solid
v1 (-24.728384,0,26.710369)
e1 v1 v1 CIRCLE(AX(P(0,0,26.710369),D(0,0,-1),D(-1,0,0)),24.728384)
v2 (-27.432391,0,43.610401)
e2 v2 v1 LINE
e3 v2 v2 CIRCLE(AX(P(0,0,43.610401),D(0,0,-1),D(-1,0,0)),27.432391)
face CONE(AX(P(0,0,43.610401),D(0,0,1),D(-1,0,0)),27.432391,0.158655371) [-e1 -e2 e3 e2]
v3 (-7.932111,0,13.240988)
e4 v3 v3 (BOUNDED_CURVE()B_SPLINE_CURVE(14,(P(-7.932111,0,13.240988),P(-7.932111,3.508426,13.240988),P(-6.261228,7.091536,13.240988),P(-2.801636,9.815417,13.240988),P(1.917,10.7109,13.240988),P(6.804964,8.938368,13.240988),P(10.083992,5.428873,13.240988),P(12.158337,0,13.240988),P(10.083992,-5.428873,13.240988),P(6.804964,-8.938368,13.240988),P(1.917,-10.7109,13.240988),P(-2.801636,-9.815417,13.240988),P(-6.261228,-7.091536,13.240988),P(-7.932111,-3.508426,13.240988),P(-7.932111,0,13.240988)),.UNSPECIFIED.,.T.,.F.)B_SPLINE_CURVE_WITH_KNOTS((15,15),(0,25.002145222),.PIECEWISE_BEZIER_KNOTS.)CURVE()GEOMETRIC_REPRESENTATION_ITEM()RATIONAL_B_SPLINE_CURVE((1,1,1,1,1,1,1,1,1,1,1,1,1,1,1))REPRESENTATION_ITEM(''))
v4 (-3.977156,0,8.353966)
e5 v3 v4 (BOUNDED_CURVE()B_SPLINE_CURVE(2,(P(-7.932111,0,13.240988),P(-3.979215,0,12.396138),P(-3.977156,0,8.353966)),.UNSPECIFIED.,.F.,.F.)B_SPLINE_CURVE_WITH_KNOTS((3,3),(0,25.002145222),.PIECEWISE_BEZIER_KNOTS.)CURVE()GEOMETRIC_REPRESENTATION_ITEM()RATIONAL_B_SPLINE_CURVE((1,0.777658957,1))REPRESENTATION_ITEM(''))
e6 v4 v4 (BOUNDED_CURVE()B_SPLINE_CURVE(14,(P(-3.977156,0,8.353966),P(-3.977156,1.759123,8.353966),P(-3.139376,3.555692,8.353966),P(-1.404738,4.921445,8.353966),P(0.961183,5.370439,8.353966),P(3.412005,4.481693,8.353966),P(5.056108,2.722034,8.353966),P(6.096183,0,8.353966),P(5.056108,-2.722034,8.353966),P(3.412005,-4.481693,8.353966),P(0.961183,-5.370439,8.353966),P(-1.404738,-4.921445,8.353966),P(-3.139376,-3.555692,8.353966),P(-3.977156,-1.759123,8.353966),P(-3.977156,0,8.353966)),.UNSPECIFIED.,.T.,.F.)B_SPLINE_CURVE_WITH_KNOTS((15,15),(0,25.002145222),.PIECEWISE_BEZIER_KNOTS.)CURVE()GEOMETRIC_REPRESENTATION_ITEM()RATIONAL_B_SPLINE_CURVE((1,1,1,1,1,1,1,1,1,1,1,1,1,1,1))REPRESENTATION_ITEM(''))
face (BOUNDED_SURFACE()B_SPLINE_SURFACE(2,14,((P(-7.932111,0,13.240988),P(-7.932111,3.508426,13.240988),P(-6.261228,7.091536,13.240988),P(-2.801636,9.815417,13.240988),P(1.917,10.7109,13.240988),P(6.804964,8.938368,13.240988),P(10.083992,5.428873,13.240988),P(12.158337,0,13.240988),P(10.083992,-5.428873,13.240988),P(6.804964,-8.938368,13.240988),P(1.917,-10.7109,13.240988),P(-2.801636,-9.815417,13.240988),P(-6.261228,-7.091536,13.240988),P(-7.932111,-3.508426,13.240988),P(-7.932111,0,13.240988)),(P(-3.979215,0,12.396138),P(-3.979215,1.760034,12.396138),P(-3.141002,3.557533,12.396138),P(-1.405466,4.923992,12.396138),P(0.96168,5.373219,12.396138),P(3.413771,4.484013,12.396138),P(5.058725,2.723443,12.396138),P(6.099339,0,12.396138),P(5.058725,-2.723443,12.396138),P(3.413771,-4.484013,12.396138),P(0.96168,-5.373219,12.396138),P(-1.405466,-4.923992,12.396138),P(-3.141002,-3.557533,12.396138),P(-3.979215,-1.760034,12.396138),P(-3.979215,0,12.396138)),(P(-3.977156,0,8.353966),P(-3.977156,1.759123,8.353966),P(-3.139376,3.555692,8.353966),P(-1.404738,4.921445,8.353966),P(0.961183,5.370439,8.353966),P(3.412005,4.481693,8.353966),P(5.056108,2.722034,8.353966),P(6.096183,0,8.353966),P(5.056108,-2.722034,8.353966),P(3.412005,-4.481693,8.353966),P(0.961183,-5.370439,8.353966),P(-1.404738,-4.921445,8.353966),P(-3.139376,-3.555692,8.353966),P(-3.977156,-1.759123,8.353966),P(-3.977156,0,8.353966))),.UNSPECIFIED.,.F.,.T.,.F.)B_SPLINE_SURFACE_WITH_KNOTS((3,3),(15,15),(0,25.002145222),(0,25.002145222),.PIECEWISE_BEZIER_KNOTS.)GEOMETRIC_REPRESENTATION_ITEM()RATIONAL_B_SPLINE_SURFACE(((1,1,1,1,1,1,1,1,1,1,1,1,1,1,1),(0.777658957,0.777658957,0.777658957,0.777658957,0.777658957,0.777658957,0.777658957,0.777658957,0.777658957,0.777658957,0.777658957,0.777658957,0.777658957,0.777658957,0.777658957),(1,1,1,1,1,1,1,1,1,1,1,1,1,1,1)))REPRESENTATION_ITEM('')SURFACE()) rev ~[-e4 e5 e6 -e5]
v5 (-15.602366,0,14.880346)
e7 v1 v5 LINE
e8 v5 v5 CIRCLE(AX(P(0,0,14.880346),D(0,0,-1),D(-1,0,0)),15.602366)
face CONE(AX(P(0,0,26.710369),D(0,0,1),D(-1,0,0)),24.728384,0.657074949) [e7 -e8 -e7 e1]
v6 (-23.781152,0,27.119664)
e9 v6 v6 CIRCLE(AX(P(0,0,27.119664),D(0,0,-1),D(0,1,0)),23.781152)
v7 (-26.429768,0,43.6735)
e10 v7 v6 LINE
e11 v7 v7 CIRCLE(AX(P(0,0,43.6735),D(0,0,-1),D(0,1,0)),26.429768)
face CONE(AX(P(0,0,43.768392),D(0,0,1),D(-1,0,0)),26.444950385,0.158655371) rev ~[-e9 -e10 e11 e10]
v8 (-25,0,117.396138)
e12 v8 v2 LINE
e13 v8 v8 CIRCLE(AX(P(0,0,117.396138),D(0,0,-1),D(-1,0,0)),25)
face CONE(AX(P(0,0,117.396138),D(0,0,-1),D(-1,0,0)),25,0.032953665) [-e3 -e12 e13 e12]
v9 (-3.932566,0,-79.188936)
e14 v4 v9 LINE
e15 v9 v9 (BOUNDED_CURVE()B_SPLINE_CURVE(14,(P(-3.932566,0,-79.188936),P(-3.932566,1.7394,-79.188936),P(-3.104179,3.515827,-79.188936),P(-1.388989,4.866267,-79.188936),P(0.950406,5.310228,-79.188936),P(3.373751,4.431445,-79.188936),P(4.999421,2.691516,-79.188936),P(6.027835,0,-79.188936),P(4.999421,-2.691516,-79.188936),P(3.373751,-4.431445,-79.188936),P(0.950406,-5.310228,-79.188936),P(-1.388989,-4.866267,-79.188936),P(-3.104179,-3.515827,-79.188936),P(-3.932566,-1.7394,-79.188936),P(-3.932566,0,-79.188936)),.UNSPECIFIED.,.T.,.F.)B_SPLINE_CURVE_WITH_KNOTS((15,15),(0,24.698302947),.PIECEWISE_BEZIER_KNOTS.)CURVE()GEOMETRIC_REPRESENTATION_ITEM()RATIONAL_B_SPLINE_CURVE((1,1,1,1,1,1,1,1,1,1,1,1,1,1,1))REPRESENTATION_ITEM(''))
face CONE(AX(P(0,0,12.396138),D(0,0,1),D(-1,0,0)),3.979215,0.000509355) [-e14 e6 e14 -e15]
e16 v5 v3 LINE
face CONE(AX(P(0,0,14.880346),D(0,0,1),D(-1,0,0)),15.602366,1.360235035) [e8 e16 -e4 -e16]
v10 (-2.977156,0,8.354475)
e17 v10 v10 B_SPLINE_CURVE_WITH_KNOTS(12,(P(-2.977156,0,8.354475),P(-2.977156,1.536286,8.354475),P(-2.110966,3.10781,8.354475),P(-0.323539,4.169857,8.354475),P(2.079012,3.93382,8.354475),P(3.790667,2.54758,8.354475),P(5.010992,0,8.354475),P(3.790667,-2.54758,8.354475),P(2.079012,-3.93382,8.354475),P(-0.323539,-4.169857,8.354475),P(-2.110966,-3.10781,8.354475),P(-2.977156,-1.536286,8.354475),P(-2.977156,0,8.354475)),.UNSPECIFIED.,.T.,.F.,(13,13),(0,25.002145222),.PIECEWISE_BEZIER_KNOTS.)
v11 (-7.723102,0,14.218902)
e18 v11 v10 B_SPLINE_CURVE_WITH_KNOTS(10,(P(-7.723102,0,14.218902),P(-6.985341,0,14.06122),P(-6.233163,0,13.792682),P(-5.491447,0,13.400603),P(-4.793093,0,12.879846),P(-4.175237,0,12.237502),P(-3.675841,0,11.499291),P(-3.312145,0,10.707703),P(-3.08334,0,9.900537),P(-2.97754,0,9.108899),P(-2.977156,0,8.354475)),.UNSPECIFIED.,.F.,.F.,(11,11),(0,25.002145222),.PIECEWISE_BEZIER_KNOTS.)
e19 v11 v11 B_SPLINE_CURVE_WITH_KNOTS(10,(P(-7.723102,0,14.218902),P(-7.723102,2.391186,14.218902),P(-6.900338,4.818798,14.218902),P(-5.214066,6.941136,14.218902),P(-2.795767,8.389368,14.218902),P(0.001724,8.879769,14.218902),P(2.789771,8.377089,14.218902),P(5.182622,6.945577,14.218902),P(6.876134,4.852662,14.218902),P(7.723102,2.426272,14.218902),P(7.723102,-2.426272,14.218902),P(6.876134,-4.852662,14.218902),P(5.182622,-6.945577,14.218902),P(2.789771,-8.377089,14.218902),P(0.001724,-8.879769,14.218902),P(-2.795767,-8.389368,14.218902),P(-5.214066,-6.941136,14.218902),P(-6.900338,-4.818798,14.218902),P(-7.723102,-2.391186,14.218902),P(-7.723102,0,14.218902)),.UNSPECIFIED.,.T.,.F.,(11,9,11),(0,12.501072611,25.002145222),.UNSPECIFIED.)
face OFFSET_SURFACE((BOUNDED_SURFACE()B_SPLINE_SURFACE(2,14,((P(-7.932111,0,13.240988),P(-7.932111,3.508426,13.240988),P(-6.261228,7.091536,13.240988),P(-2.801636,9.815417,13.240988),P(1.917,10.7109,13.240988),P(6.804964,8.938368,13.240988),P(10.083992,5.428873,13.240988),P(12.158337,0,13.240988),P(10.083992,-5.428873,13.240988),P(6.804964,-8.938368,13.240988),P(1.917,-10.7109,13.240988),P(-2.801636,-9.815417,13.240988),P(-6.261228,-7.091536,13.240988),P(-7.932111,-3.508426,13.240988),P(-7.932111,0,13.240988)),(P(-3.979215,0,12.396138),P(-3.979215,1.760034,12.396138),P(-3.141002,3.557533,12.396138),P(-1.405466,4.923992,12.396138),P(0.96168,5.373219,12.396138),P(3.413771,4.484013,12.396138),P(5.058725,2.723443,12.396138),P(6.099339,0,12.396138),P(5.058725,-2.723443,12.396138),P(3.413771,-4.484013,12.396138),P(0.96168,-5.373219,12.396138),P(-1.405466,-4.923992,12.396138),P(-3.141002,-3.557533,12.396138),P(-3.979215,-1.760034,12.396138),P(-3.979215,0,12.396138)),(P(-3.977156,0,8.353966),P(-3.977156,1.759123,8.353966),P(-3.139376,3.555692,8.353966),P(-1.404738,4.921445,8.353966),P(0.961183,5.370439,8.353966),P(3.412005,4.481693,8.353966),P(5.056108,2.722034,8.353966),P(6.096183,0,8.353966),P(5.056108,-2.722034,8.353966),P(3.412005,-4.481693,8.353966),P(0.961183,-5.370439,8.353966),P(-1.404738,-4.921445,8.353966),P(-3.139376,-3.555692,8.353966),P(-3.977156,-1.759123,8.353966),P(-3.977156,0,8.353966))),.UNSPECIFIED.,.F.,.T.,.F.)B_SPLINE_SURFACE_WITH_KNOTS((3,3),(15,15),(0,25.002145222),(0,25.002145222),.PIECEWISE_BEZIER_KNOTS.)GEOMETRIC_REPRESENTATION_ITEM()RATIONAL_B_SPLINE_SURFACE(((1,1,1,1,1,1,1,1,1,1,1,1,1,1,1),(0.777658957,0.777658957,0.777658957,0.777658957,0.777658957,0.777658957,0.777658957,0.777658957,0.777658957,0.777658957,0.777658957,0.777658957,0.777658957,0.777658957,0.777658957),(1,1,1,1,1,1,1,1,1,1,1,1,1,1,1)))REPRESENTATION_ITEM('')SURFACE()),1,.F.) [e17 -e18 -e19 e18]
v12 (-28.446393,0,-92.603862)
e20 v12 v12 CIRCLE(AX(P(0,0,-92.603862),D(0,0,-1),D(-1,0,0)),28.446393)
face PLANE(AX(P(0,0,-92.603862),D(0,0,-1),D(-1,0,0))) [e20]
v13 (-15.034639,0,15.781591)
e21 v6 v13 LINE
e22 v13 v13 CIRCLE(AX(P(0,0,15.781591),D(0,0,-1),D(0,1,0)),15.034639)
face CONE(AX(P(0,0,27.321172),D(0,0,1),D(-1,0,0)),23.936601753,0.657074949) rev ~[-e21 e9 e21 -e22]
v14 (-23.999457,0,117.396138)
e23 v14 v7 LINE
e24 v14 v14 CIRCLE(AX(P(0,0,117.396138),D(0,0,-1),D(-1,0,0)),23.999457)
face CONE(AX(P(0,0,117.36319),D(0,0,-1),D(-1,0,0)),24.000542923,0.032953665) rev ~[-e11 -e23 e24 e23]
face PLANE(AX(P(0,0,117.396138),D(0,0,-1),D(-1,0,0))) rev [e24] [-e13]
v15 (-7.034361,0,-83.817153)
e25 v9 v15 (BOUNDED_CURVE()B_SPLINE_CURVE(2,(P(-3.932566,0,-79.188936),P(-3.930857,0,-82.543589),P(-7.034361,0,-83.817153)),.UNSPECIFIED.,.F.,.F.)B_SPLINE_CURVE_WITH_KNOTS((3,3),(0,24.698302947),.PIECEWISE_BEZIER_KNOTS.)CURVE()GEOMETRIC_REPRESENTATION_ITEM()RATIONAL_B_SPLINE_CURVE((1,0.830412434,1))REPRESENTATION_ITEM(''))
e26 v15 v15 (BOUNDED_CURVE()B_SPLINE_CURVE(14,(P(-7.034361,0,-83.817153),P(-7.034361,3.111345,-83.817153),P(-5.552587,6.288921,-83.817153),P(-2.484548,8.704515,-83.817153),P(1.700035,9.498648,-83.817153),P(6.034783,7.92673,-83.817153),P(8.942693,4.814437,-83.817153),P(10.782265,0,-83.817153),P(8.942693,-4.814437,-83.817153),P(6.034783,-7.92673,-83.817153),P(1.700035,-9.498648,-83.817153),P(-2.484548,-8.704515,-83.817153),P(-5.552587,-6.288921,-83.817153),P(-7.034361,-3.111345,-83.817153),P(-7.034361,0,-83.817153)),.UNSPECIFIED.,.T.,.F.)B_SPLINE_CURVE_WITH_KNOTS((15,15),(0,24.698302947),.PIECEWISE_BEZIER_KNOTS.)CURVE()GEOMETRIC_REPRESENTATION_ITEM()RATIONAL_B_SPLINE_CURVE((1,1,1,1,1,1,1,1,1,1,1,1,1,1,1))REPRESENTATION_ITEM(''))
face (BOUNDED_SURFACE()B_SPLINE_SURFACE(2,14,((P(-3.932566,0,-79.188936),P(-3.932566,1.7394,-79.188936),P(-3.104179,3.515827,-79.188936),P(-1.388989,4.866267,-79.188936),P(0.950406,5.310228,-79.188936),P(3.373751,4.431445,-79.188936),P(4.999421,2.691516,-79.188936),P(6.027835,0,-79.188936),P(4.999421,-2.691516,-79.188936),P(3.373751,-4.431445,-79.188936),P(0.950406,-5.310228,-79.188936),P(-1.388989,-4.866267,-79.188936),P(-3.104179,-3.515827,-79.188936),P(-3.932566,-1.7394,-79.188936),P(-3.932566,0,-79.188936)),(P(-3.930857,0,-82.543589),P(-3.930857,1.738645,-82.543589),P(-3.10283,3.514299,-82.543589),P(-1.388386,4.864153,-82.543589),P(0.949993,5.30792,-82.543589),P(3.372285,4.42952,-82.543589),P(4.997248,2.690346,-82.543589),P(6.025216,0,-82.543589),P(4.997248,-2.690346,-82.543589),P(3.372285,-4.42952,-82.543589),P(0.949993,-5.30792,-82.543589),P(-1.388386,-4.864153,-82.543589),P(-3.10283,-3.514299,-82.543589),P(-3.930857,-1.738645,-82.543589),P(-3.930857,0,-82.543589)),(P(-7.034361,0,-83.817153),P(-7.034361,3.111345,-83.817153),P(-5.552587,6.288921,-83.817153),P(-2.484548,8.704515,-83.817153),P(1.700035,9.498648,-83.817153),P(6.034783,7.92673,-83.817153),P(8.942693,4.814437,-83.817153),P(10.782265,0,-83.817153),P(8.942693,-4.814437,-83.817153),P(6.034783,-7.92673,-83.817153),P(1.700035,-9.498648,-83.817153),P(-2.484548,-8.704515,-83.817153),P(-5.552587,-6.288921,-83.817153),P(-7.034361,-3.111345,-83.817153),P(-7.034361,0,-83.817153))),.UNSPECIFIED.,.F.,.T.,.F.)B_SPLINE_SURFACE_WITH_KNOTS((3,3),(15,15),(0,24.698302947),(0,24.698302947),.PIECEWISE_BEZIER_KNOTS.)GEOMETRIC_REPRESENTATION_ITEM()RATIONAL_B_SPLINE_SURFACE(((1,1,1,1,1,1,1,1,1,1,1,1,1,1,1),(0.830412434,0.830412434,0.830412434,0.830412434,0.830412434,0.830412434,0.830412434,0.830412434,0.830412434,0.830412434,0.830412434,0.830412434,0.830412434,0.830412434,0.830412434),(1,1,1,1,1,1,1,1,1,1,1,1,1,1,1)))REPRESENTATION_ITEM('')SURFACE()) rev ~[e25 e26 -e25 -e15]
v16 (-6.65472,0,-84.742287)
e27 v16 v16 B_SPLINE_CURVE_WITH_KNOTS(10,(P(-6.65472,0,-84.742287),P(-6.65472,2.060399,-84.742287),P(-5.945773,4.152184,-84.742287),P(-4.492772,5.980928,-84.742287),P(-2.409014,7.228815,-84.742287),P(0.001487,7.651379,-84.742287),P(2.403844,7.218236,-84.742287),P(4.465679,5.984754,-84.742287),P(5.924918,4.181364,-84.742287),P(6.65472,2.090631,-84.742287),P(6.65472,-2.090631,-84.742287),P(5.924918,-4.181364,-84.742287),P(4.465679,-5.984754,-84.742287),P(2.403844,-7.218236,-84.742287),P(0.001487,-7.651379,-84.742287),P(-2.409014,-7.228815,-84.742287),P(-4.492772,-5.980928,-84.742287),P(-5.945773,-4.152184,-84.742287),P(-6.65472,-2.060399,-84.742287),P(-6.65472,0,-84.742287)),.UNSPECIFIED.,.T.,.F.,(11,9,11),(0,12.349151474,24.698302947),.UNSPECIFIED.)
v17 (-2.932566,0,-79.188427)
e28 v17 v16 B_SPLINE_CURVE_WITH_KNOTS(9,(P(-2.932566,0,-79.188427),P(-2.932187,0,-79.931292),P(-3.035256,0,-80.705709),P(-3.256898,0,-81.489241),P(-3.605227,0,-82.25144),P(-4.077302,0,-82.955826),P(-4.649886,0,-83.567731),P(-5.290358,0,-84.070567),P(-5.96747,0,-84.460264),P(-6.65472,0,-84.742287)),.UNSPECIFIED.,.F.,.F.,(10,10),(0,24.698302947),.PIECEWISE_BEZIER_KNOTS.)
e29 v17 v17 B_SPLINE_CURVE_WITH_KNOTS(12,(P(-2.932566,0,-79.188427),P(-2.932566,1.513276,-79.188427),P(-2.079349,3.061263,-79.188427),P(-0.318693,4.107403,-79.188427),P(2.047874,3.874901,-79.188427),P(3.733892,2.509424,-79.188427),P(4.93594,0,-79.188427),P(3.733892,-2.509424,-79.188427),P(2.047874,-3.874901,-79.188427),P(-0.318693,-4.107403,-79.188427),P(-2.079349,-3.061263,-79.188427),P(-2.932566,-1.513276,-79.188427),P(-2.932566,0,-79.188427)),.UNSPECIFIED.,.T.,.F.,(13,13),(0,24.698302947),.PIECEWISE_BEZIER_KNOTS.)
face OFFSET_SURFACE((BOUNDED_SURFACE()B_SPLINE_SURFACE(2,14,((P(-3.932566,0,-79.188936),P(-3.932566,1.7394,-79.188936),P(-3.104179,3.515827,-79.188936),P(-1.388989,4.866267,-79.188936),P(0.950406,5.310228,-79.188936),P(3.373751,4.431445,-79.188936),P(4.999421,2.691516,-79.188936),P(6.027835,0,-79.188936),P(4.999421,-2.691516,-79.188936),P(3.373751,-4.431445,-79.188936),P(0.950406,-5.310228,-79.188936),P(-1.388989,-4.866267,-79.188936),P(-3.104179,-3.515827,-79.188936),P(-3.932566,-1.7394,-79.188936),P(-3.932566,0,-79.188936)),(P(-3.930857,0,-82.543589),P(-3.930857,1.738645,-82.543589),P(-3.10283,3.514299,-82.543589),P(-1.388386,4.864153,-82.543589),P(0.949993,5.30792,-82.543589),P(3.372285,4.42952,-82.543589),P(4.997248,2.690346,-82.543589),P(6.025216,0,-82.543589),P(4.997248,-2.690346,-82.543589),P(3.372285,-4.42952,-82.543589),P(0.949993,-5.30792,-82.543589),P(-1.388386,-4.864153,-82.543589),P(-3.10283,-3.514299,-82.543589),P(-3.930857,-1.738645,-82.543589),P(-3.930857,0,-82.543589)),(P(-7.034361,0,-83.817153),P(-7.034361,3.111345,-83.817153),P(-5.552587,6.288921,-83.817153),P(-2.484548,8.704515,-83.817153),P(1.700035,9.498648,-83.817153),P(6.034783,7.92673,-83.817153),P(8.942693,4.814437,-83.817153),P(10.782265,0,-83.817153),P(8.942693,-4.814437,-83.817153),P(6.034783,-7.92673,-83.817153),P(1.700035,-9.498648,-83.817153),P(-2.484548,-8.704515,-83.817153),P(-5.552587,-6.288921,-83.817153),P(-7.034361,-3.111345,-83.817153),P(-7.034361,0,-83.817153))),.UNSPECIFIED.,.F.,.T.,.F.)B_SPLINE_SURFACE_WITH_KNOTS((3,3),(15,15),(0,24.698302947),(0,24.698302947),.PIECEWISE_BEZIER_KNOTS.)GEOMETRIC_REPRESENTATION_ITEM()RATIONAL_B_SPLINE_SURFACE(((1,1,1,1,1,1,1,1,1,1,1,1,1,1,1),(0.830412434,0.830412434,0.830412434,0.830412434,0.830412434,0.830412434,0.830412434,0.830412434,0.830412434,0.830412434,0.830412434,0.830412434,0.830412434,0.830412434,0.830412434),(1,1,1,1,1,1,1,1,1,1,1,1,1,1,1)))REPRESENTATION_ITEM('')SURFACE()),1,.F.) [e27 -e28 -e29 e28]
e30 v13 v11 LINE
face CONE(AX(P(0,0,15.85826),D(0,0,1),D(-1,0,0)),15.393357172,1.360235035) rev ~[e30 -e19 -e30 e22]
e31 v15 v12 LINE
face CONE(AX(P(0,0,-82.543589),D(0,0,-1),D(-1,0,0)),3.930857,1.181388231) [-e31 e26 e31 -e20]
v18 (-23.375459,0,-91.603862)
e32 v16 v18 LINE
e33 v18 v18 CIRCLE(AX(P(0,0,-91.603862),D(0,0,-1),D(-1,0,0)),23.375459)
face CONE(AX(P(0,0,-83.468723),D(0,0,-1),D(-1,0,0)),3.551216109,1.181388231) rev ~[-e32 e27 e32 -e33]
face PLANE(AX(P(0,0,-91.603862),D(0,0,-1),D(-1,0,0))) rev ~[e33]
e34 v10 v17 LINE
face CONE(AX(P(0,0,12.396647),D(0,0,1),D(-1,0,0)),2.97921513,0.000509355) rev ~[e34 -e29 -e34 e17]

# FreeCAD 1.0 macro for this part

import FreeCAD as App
import Part
import Sketcher

V = App.Vector


def edges_at(feature, points):
    """Names of the edges that pass closest to the given points."""
    edges = feature.Shape.Edges
    near = lambda p: min(range(len(edges)), key=lambda i: edges[i].distToShape(Part.Vertex(*p))[0])
    return sorted({f"Edge{near(p) + 1}" for p in points})


def faces_at(feature, points):
    """Names of the faces that lie closest to the given points."""
    faces = feature.Shape.Faces
    near = lambda p: min(range(len(faces)), key=lambda i: faces[i].distToShape(Part.Vertex(*p))[0])
    return sorted({f"Face{near(p) + 1}" for p in points})

doc = App.newDocument("Part")
body = doc.addObject("PartDesign::Body", "Body")

# Sketch on XZ plane
sketch1 = body.newObject("Sketcher::SketchObject", "Sketch")
sketch1.AttachmentSupport = (doc.getObject("XZ_Plane"), [""])
sketch1.MapMode = "FlatFace"
sketch1.addGeometry([
    Part.LineSegment(V(0, 117, 0), V(-25, 117, 0)),  # 0
    Part.LineSegment(V(-25, 117, 0), V(-27, 44, 0)),  # 1
    Part.LineSegment(V(-27, 44, 0), V(-25, 27, 0)),  # 2
    Part.LineSegment(V(-25, 27, 0), V(-16, 15, 0)),  # 3
    Part.LineSegment(V(-16, 15, 0), V(-4, 12, 0)),  # 4
    Part.LineSegment(V(-4, 12, 0), V(-4, -83, 0)),  # 5
    Part.LineSegment(V(-4, -83, 0), V(-28, -93, 0)),  # 6
    Part.LineSegment(V(-28, -93, 0), V(0, -93, 0)),  # 7
    Part.LineSegment(V(0, -93, 0), V(0, 117, 0)),  # 8
], False)
sketch1.addConstraint([
    Sketcher.Constraint("Coincident", 0, 2, 1, 1),
    Sketcher.Constraint("Coincident", 1, 2, 2, 1),
    Sketcher.Constraint("Coincident", 2, 2, 3, 1),
    Sketcher.Constraint("Coincident", 3, 2, 4, 1),
    Sketcher.Constraint("Coincident", 4, 2, 5, 1),
    Sketcher.Constraint("Coincident", 5, 2, 6, 1),
    Sketcher.Constraint("Coincident", 6, 2, 7, 1),
    Sketcher.Constraint("Coincident", 7, 2, 8, 1),
    Sketcher.Constraint("Coincident", 8, 2, 0, 1),
    Sketcher.Constraint("Horizontal", 0),
    Sketcher.Constraint("Horizontal", 7),
    Sketcher.Constraint("Vertical", 8),
    Sketcher.Constraint("PointOnObject", 7, 2, -2),
    Sketcher.Constraint("DistanceX", 0, 2, 0, 1, 25.0),
    Sketcher.Constraint("DistanceY", 8, 1, 8, 2, 210.0),
    Sketcher.Constraint("DistanceY", 4, 2, 0, 2, 105.0),
    Sketcher.Constraint("DistanceY", -1, 1, 1, 2, 43.610401),
    Sketcher.Constraint("Distance", 1, 73.825819),
    Sketcher.Constraint("Distance", 4, 11.885661),
    Sketcher.Constraint("Distance", 5, 94.939739),
    Sketcher.Constraint("DistanceX", 7, 1, 7, 2, 28.446393),
    Sketcher.Constraint("DistanceX", 1, 2, -1, 1, 27.432391),
    Sketcher.Constraint("DistanceY", -1, 1, 2, 2, 26.710369),
    Sketcher.Constraint("DistanceY", 3, 2, 0, 2, 102.515792),
    Sketcher.Constraint("DistanceX", 2, 2, 4, 2, 20.749169),
    Sketcher.Constraint("DistanceX", 3, 2, 5, 2, 11.671509),
    Sketcher.Constraint("DistanceX", 6, 2, 4, 2, 24.467178),
])
revolution = body.newObject("PartDesign::Revolution", "Revolution")
revolution.Profile = sketch1
revolution.ReferenceAxis = (sketch1, ["V_Axis"])
revolution.Angle = 360
doc.recompute()

fillet = body.newObject("PartDesign::Fillet", "Fillet")
fillet.Base = (revolution, edges_at(revolution, [(3.931, 0, -82.544), (3.979, 0, 12.396)]))
fillet.Radius = 5
doc.recompute()

thickness = body.newObject("PartDesign::Thickness", "Thickness")
thickness.Base = (fillet, faces_at(fillet, [(0, 0, 117.396)]))
thickness.Value = 1
thickness.Reversed = True
thickness.Join = "Arc"

doc.recompute()
